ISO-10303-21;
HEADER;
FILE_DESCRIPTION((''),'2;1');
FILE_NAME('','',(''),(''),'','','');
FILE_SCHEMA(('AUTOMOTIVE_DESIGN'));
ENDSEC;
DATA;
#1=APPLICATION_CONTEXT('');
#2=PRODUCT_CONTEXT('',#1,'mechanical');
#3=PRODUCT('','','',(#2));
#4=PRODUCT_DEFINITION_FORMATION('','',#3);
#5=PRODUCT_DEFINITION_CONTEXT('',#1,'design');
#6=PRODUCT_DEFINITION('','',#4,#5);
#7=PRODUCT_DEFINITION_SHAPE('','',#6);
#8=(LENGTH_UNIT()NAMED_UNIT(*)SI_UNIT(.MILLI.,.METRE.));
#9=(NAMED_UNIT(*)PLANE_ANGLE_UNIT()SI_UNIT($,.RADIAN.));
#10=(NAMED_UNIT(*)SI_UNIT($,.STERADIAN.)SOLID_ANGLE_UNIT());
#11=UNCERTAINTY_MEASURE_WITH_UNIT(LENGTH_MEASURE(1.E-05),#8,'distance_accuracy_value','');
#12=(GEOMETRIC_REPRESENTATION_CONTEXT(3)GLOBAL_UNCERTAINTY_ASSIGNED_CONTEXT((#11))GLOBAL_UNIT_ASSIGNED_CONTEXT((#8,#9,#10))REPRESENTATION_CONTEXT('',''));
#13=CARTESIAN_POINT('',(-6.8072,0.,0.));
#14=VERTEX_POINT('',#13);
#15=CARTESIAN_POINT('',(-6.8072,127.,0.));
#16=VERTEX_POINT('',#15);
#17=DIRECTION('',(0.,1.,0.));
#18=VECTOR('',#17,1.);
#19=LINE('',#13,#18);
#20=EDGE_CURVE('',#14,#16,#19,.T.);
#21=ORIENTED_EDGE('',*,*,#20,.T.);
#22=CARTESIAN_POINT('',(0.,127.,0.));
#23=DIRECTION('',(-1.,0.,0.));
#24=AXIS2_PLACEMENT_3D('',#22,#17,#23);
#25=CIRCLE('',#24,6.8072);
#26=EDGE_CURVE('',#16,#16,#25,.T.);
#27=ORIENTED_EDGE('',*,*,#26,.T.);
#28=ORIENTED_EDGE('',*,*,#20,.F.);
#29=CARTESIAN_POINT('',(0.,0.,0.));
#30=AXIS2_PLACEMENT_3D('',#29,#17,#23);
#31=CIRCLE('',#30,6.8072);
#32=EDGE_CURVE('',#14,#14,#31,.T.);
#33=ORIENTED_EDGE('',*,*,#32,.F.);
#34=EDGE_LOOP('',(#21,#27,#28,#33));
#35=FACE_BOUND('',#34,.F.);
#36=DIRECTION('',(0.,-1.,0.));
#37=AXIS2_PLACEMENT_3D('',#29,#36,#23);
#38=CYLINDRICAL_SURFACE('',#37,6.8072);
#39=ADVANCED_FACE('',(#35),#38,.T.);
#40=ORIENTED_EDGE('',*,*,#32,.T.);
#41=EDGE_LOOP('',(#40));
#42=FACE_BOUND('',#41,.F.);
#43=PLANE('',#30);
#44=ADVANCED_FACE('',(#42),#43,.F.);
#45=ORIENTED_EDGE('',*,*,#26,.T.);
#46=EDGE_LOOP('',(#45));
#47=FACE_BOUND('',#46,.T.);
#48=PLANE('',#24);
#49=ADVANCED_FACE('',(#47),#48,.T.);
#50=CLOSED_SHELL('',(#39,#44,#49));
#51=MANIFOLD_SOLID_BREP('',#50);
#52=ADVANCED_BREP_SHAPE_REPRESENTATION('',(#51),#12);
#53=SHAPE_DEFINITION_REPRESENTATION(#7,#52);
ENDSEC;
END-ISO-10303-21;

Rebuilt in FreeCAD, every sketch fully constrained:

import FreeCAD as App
import Part
import Sketcher
from FreeCAD import Vector
Q = App.Units.Quantity

doc = App.newDocument("Part")
body = doc.addObject("PartDesign::Body", "Body")

sketch1 = doc.addObject("Sketcher::SketchObject", "Sketch")
body.addObject(sketch1)
sketch1.AttachmentSupport = (doc.XZ_Plane, [""])
sketch1.MapMode = "FlatFace"
sketch1.addGeometry(Part.Circle(Vector(0, 0, 0), Vector(0, 0, 1), 6.8072), False)
sketch1.addConstraint([
    Sketcher.Constraint("Coincident", 0, 3, -1, 1),
    Sketcher.Constraint("Diameter", 0, Q("0.536 in")),
])
pad1 = doc.addObject("PartDesign::Pad", "Pad")
body.addObject(pad1)
pad1.Profile = sketch1
pad1.Length = Q("5 in")
pad1.Reversed = True

doc.recompute()
